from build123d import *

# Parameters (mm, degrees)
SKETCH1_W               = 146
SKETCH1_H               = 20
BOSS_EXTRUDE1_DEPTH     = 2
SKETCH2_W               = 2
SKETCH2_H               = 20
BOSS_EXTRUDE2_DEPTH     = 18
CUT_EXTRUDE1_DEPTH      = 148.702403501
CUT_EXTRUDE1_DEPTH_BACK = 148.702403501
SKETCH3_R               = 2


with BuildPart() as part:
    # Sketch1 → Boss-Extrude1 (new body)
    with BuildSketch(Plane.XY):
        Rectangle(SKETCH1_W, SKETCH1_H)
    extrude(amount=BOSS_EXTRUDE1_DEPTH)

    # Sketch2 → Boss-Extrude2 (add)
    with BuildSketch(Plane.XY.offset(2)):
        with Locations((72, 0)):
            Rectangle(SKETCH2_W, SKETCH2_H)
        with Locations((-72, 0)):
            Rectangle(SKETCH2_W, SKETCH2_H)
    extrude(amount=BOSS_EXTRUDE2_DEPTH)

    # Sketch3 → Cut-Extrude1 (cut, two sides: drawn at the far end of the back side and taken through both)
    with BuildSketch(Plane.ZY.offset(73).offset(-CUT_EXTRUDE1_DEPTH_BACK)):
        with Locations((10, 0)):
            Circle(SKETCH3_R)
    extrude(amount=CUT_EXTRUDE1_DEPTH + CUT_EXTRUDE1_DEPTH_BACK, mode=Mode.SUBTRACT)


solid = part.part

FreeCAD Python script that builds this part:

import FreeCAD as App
import Part
import Sketcher
from FreeCAD import Vector


def add_polygon(sketch, points):
    """Adds a closed chain of lines whose ends are joined by coincident constraints."""
    first, n = sketch.GeometryCount, len(points)
    for a, b in zip(points, points[1:] + points[:1]):
        sketch.addGeometry(Part.LineSegment(App.Vector(*a, 0), App.Vector(*b, 0)), False)
    for i in range(n):
        sketch.addConstraint(Sketcher.Constraint("Coincident", first + i, 2, first + (i + 1) % n, 1))

doc = App.newDocument("Part")
body = doc.addObject("PartDesign::Body", "Body")

sketch1 = body.newObject("Sketcher::SketchObject", "Sketch")
sketch1.AttachmentSupport = (doc.getObject("XY_Plane"), [""])
sketch1.MapMode = "FlatFace"
add_polygon(sketch1, [(-73, 10), (-73, -10), (73, -10), (73, 10)])
sketch1.addConstraint([
    Sketcher.Constraint("Vertical", 0),
    Sketcher.Constraint("Horizontal", 1),
    Sketcher.Constraint("Vertical", 2),
    Sketcher.Constraint("Horizontal", 3),
    Sketcher.Constraint("Symmetric", 0, 2, 2, 2, -1, 1),
    Sketcher.Constraint("DistanceX", 1, 1, 1, 2, 146.0),
    Sketcher.Constraint("DistanceY", 0, 2, 0, 1, 20.0),
])
pad1 = body.newObject("PartDesign::Pad", "Pad")
pad1.Profile = sketch1
pad1.Length = 2

sketch2 = body.newObject("Sketcher::SketchObject", "Sketch001")
sketch2.AttachmentSupport = (doc.getObject("XY_Plane"), [""])
sketch2.MapMode = "FlatFace"
sketch2.AttachmentOffset = App.Placement(Vector(0, 0, 2), App.Rotation())
add_polygon(sketch2, [(71, 10), (71, -10), (73, -10), (73, 10)])
add_polygon(sketch2, [(-73, 10), (-73, -10), (-71, -10), (-71, 10)])
sketch2.addConstraint([
    Sketcher.Constraint("Vertical", 0),
    Sketcher.Constraint("Horizontal", 1),
    Sketcher.Constraint("Vertical", 2),
    Sketcher.Constraint("Horizontal", 3),
    Sketcher.Constraint("Vertical", 4),
    Sketcher.Constraint("Horizontal", 5),
    Sketcher.Constraint("Vertical", 6),
    Sketcher.Constraint("Horizontal", 7),
    Sketcher.Constraint("Symmetric", 2, 2, 4, 2, -1, 1),
    Sketcher.Constraint("Symmetric", 0, 2, 6, 2, -1, 1),
    Sketcher.Constraint("Horizontal", 1, 2, 4, 2),
    Sketcher.Constraint("DistanceX", 1, 1, 1, 2, 2.0),
    Sketcher.Constraint("DistanceY", 0, 2, 0, 1, 20.0),
    Sketcher.Constraint("DistanceX", -1, 1, 0, 2, 71.0),
])
pad2 = body.newObject("PartDesign::Pad", "Pad001")
pad2.Profile = sketch2
pad2.Length = 18

sketch3 = body.newObject("Sketcher::SketchObject", "Sketch002")
sketch3.AttachmentSupport = (doc.getObject("YZ_Plane"), [""])
sketch3.MapMode = "FlatFace"
sketch3.AttachmentOffset = App.Placement(Vector(0, 0, -73), App.Rotation())
sketch3.addGeometry(Part.Circle(Vector(0, 10, 0), Vector(0, 0, 1), 2), False)
sketch3.addConstraint([
    Sketcher.Constraint("PointOnObject", 0, 3, -2),
    Sketcher.Constraint("Diameter", 0, 4.0),
    Sketcher.Constraint("DistanceY", -1, 1, 0, 3, 10.0),
])
pocket1 = body.newObject("PartDesign::Pocket", "Pocket")
pocket1.Profile = sketch3
pocket1.Type = "ThroughAll"
pocket1.Midplane = True

doc.recompute()
